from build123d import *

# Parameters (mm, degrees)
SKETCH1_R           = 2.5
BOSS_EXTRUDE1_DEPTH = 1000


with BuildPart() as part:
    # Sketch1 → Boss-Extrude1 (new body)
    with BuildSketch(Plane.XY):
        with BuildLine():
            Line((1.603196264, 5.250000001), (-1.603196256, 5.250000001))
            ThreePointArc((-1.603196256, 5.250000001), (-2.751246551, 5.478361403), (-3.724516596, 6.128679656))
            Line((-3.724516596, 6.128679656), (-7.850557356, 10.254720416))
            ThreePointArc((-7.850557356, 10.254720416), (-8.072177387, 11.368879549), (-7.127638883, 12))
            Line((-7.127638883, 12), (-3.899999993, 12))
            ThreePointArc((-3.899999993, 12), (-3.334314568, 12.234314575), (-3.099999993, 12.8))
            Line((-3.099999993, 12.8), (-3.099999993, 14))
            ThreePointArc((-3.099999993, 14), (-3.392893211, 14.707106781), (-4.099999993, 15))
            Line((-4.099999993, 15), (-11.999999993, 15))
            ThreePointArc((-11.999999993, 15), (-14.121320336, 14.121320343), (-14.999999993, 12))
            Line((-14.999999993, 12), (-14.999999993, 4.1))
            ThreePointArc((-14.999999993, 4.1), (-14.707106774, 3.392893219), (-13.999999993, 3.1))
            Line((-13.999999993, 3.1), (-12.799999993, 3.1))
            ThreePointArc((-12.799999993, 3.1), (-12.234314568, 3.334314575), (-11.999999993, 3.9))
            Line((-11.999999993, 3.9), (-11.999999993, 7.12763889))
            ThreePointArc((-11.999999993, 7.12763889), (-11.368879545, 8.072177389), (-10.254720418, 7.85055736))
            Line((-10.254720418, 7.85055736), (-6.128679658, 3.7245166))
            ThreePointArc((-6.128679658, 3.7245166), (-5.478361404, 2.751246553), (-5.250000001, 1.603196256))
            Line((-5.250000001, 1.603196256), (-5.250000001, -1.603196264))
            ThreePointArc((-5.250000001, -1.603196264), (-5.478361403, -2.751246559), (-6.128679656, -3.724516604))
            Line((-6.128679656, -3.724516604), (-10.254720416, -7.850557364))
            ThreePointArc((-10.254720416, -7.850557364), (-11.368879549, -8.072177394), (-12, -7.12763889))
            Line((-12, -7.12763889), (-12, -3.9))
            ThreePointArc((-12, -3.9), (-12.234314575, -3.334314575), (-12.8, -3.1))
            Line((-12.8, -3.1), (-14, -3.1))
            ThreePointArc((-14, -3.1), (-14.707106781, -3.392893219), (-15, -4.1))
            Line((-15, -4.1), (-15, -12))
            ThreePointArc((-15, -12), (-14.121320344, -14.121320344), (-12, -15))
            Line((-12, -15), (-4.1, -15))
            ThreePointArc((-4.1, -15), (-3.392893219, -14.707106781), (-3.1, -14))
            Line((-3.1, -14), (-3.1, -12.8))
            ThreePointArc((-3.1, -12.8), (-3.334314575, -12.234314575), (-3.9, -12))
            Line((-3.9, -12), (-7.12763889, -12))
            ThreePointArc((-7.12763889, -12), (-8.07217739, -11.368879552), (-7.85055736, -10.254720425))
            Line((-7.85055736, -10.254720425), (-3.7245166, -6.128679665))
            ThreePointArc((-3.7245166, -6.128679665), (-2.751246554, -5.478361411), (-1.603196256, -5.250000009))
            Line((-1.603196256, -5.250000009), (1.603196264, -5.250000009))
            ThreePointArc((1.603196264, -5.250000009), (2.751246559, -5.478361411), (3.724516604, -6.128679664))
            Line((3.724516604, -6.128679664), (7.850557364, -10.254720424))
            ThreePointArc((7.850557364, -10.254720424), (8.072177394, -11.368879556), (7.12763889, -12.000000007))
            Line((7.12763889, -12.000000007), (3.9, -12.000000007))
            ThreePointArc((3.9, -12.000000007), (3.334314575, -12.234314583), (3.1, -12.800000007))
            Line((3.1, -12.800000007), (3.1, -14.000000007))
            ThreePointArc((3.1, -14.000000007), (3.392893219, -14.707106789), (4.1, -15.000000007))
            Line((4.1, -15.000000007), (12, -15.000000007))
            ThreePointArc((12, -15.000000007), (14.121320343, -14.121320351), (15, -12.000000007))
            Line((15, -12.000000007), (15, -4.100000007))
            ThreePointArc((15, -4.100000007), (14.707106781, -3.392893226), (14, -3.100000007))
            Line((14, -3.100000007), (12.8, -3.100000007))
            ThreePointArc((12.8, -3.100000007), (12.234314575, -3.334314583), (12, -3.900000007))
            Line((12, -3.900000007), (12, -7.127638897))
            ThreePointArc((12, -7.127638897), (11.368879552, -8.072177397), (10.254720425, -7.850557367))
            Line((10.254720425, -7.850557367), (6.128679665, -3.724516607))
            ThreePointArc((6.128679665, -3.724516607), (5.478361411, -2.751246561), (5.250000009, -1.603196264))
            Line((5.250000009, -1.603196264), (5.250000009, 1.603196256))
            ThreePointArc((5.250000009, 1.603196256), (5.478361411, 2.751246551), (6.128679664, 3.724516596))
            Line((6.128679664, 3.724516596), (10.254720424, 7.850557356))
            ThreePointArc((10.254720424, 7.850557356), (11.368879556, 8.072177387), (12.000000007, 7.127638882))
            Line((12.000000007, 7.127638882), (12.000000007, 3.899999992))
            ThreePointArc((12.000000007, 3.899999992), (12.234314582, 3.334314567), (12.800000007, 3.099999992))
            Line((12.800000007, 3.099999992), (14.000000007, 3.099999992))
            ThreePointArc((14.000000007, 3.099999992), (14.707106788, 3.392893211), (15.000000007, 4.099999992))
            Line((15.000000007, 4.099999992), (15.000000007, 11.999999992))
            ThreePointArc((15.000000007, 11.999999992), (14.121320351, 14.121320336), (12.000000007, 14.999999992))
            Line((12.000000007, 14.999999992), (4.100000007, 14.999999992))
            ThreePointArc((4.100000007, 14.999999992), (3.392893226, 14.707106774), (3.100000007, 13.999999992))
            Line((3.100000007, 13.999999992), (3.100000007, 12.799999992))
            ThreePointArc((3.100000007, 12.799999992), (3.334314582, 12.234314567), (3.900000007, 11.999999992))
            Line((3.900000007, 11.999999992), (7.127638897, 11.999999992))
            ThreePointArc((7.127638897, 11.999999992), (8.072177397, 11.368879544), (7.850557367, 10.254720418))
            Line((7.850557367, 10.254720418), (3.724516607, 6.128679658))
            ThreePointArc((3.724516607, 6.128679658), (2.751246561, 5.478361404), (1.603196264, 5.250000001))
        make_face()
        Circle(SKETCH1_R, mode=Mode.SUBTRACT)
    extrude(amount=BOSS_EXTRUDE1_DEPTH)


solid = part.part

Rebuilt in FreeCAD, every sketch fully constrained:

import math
import FreeCAD as App
import Part
import Sketcher

V = App.Vector

doc = App.newDocument("Part")
body = doc.addObject("PartDesign::Body", "Body")

sketch1 = body.newObject("Sketcher::SketchObject", "Sketch")
sketch1.AttachmentSupport = (doc.getObject("XY_Plane"), [""])
sketch1.MapMode = "FlatFace"
sketch1.addGeometry(Part.LineSegment(V(1.6, 5.3, 0), V(-1.6, 5.3, 0)), False)
sketch1.addGeometry(Part.ArcOfCircle(Part.Circle(V(-1.6, 8.2, 0), V(0, 0, 1), 3), math.radians(-135), math.radians(-90)), False)
sketch1.addGeometry(Part.LineSegment(V(-3.7, 6.1, 0), V(-7.9, 10.3, 0)), False)
sketch1.addGeometry(Part.ArcOfCircle(Part.Circle(V(-7.1, 11, 0), V(0, 0, 1), 1), math.radians(90), math.radians(225)), False)
sketch1.addGeometry(Part.LineSegment(V(-7.1, 12, 0), V(-3.9, 12, 0)), False)
sketch1.addGeometry(Part.ArcOfCircle(Part.Circle(V(-3.9, 12.8, 0), V(0, 0, 1), 0.8), math.radians(-90), math.radians(0)), False)
sketch1.addGeometry(Part.LineSegment(V(-3.1, 12.8, 0), V(-3.1, 14, 0)), False)
sketch1.addGeometry(Part.ArcOfCircle(Part.Circle(V(-4.1, 14, 0), V(0, 0, 1), 1), math.radians(0), math.radians(90)), False)
sketch1.addGeometry(Part.LineSegment(V(-4.1, 15, 0), V(-12, 15, 0)), False)
sketch1.addGeometry(Part.ArcOfCircle(Part.Circle(V(-12, 12, 0), V(0, 0, 1), 3), math.radians(90), math.radians(180)), False)
sketch1.addGeometry(Part.LineSegment(V(-15, 12, 0), V(-15, 4.1, 0)), False)
sketch1.addGeometry(Part.ArcOfCircle(Part.Circle(V(-14, 4.1, 0), V(0, 0, 1), 1), math.radians(-180), math.radians(-90)), False)
sketch1.addGeometry(Part.LineSegment(V(-14, 3.1, 0), V(-12.8, 3.1, 0)), False)
sketch1.addGeometry(Part.ArcOfCircle(Part.Circle(V(-12.8, 3.9, 0), V(0, 0, 1), 0.8), math.radians(-90), math.radians(0)), False)
sketch1.addGeometry(Part.LineSegment(V(-12, 3.9, 0), V(-12, 7.1, 0)), False)
sketch1.addGeometry(Part.ArcOfCircle(Part.Circle(V(-11, 7.1, 0), V(0, 0, 1), 1), math.radians(45), math.radians(180)), False)
sketch1.addGeometry(Part.LineSegment(V(-10.3, 7.9, 0), V(-6.1, 3.7, 0)), False)
sketch1.addGeometry(Part.ArcOfCircle(Part.Circle(V(-8.3, 1.6, 0), V(0, 0, 1), 3), math.radians(0), math.radians(45)), False)
sketch1.addGeometry(Part.LineSegment(V(-5.3, 1.6, 0), V(-5.3, -1.6, 0)), False)
sketch1.addGeometry(Part.ArcOfCircle(Part.Circle(V(-8.2, -1.6, 0), V(0, 0, 1), 3), math.radians(-45), math.radians(0)), False)
sketch1.addGeometry(Part.LineSegment(V(-6.1, -3.7, 0), V(-10.3, -7.9, 0)), False)
sketch1.addGeometry(Part.ArcOfCircle(Part.Circle(V(-11, -7.1, 0), V(0, 0, 1), 1), math.radians(-180), math.radians(-45)), False)
sketch1.addGeometry(Part.LineSegment(V(-12, -7.1, 0), V(-12, -3.9, 0)), False)
sketch1.addGeometry(Part.ArcOfCircle(Part.Circle(V(-12.8, -3.9, 0), V(0, 0, 1), 0.8), math.radians(0), math.radians(90)), False)
sketch1.addGeometry(Part.LineSegment(V(-12.8, -3.1, 0), V(-14, -3.1, 0)), False)
sketch1.addGeometry(Part.ArcOfCircle(Part.Circle(V(-14, -4.1, 0), V(0, 0, 1), 1), math.radians(90), math.radians(180)), False)
sketch1.addGeometry(Part.LineSegment(V(-15, -4.1, 0), V(-15, -12, 0)), False)
sketch1.addGeometry(Part.ArcOfCircle(Part.Circle(V(-12, -12, 0), V(0, 0, 1), 3), math.radians(180), math.radians(270)), False)
sketch1.addGeometry(Part.LineSegment(V(-12, -15, 0), V(-4.1, -15, 0)), False)
sketch1.addGeometry(Part.ArcOfCircle(Part.Circle(V(-4.1, -14, 0), V(0, 0, 1), 1), math.radians(-90), math.radians(0)), False)
sketch1.addGeometry(Part.LineSegment(V(-3.1, -14, 0), V(-3.1, -12.8, 0)), False)
sketch1.addGeometry(Part.ArcOfCircle(Part.Circle(V(-3.9, -12.8, 0), V(0, 0, 1), 0.8), math.radians(0), math.radians(90)), False)
sketch1.addGeometry(Part.LineSegment(V(-3.9, -12, 0), V(-7.1, -12, 0)), False)
sketch1.addGeometry(Part.ArcOfCircle(Part.Circle(V(-7.1, -11, 0), V(0, 0, 1), 1), math.radians(135), math.radians(270)), False)
sketch1.addGeometry(Part.LineSegment(V(-7.9, -10.3, 0), V(-3.7, -6.1, 0)), False)
sketch1.addGeometry(Part.ArcOfCircle(Part.Circle(V(-1.6, -8.3, 0), V(0, 0, 1), 3), math.radians(90), math.radians(135)), False)
sketch1.addGeometry(Part.LineSegment(V(-1.6, -5.3, 0), V(1.6, -5.3, 0)), False)
sketch1.addGeometry(Part.ArcOfCircle(Part.Circle(V(1.6, -8.3, 0), V(0, 0, 1), 3), math.radians(45), math.radians(90)), False)
sketch1.addGeometry(Part.LineSegment(V(3.7, -6.1, 0), V(7.9, -10.3, 0)), False)
sketch1.addGeometry(Part.ArcOfCircle(Part.Circle(V(7.1, -11, 0), V(0, 0, 1), 1), math.radians(-90), math.radians(45)), False)
sketch1.addGeometry(Part.LineSegment(V(7.1, -12, 0), V(3.9, -12, 0)), False)
sketch1.addGeometry(Part.ArcOfCircle(Part.Circle(V(3.9, -12.8, 0), V(0, 0, 1), 0.8), math.radians(90), math.radians(180)), False)
sketch1.addGeometry(Part.LineSegment(V(3.1, -12.8, 0), V(3.1, -14, 0)), False)
sketch1.addGeometry(Part.ArcOfCircle(Part.Circle(V(4.1, -14, 0), V(0, 0, 1), 1), math.radians(180), math.radians(270)), False)
sketch1.addGeometry(Part.LineSegment(V(4.1, -15, 0), V(12, -15, 0)), False)
sketch1.addGeometry(Part.ArcOfCircle(Part.Circle(V(12, -12, 0), V(0, 0, 1), 3), math.radians(-90), math.radians(0)), False)
sketch1.addGeometry(Part.LineSegment(V(15, -12, 0), V(15, -4.1, 0)), False)
sketch1.addGeometry(Part.ArcOfCircle(Part.Circle(V(14, -4.1, 0), V(0, 0, 1), 1), math.radians(0), math.radians(90)), False)
sketch1.addGeometry(Part.LineSegment(V(14, -3.1, 0), V(12.8, -3.1, 0)), False)
sketch1.addGeometry(Part.ArcOfCircle(Part.Circle(V(12.8, -3.9, 0), V(0, 0, 1), 0.8), math.radians(90), math.radians(180)), False)
sketch1.addGeometry(Part.LineSegment(V(12, -3.9, 0), V(12, -7.1, 0)), False)
sketch1.addGeometry(Part.ArcOfCircle(Part.Circle(V(11, -7.1, 0), V(0, 0, 1), 1), math.radians(-135), math.radians(0)), False)
sketch1.addGeometry(Part.LineSegment(V(10.3, -7.9, 0), V(6.1, -3.7, 0)), False)
sketch1.addGeometry(Part.ArcOfCircle(Part.Circle(V(8.3, -1.6, 0), V(0, 0, 1), 3), math.radians(180), math.radians(225)), False)
sketch1.addGeometry(Part.LineSegment(V(5.3, -1.6, 0), V(5.3, 1.6, 0)), False)
sketch1.addGeometry(Part.ArcOfCircle(Part.Circle(V(8.3, 1.6, 0), V(0, 0, 1), 3), math.radians(135), math.radians(180)), False)
sketch1.addGeometry(Part.LineSegment(V(6.1, 3.7, 0), V(10.3, 7.9, 0)), False)
sketch1.addGeometry(Part.ArcOfCircle(Part.Circle(V(11, 7.1, 0), V(0, 0, 1), 1), math.radians(0), math.radians(135)), False)
sketch1.addGeometry(Part.LineSegment(V(12, 7.1, 0), V(12, 3.9, 0)), False)
sketch1.addGeometry(Part.ArcOfCircle(Part.Circle(V(12.8, 3.9, 0), V(0, 0, 1), 0.8), math.radians(180), math.radians(270)), False)
sketch1.addGeometry(Part.LineSegment(V(12.8, 3.1, 0), V(14, 3.1, 0)), False)
sketch1.addGeometry(Part.ArcOfCircle(Part.Circle(V(14, 4.1, 0), V(0, 0, 1), 1), math.radians(-90), math.radians(0)), False)
sketch1.addGeometry(Part.LineSegment(V(15, 4.1, 0), V(15, 12, 0)), False)
sketch1.addGeometry(Part.ArcOfCircle(Part.Circle(V(12, 12, 0), V(0, 0, 1), 3), math.radians(0), math.radians(90)), False)
sketch1.addGeometry(Part.LineSegment(V(12, 15, 0), V(4.1, 15, 0)), False)
sketch1.addGeometry(Part.ArcOfCircle(Part.Circle(V(4.1, 14, 0), V(0, 0, 1), 1), math.radians(90), math.radians(180)), False)
sketch1.addGeometry(Part.LineSegment(V(3.1, 14, 0), V(3.1, 12.8, 0)), False)
sketch1.addGeometry(Part.ArcOfCircle(Part.Circle(V(3.9, 12.8, 0), V(0, 0, 1), 0.8), math.radians(180), math.radians(270)), False)
sketch1.addGeometry(Part.LineSegment(V(3.9, 12, 0), V(7.1, 12, 0)), False)
sketch1.addGeometry(Part.ArcOfCircle(Part.Circle(V(7.1, 11, 0), V(0, 0, 1), 1), math.radians(-45), math.radians(90)), False)
sketch1.addGeometry(Part.LineSegment(V(7.9, 10.3, 0), V(3.7, 6.1, 0)), False)
sketch1.addGeometry(Part.ArcOfCircle(Part.Circle(V(1.6, 8.3, 0), V(0, 0, 1), 3), math.radians(-90), math.radians(-45)), False)
sketch1.addGeometry(Part.Circle(V(0, 0, 0), V(0, 0, 1), 2.5), False)
sketch1.addConstraint(Sketcher.Constraint("Tangent", 0, 2, 1, 2))
sketch1.addConstraint(Sketcher.Constraint("Tangent", 1, 1, 2, 1))
sketch1.addConstraint(Sketcher.Constraint("Tangent", 2, 2, 3, 2))
sketch1.addConstraint(Sketcher.Constraint("Tangent", 3, 1, 4, 1))
sketch1.addConstraint(Sketcher.Constraint("Tangent", 4, 2, 5, 1))
sketch1.addConstraint(Sketcher.Constraint("Tangent", 5, 2, 6, 1))
sketch1.addConstraint(Sketcher.Constraint("Tangent", 6, 2, 7, 1))
sketch1.addConstraint(Sketcher.Constraint("Tangent", 7, 2, 8, 1))
sketch1.addConstraint(Sketcher.Constraint("Tangent", 8, 2, 9, 1))
sketch1.addConstraint(Sketcher.Constraint("Tangent", 9, 2, 10, 1))
sketch1.addConstraint(Sketcher.Constraint("Tangent", 10, 2, 11, 1))
sketch1.addConstraint(Sketcher.Constraint("Tangent", 11, 2, 12, 1))
sketch1.addConstraint(Sketcher.Constraint("Tangent", 12, 2, 13, 1))
sketch1.addConstraint(Sketcher.Constraint("Tangent", 13, 2, 14, 1))
sketch1.addConstraint(Sketcher.Constraint("Tangent", 14, 2, 15, 2))
sketch1.addConstraint(Sketcher.Constraint("Tangent", 15, 1, 16, 1))
sketch1.addConstraint(Sketcher.Constraint("Tangent", 16, 2, 17, 2))
sketch1.addConstraint(Sketcher.Constraint("Tangent", 17, 1, 18, 1))
sketch1.addConstraint(Sketcher.Constraint("Tangent", 18, 2, 19, 2))
sketch1.addConstraint(Sketcher.Constraint("Tangent", 19, 1, 20, 1))
sketch1.addConstraint(Sketcher.Constraint("Tangent", 20, 2, 21, 2))
sketch1.addConstraint(Sketcher.Constraint("Tangent", 21, 1, 22, 1))
sketch1.addConstraint(Sketcher.Constraint("Tangent", 22, 2, 23, 1))
sketch1.addConstraint(Sketcher.Constraint("Tangent", 23, 2, 24, 1))
sketch1.addConstraint(Sketcher.Constraint("Tangent", 24, 2, 25, 1))
sketch1.addConstraint(Sketcher.Constraint("Tangent", 25, 2, 26, 1))
sketch1.addConstraint(Sketcher.Constraint("Tangent", 26, 2, 27, 1))
sketch1.addConstraint(Sketcher.Constraint("Tangent", 27, 2, 28, 1))
sketch1.addConstraint(Sketcher.Constraint("Tangent", 28, 2, 29, 1))
sketch1.addConstraint(Sketcher.Constraint("Tangent", 29, 2, 30, 1))
sketch1.addConstraint(Sketcher.Constraint("Tangent", 30, 2, 31, 1))
sketch1.addConstraint(Sketcher.Constraint("Tangent", 31, 2, 32, 1))
sketch1.addConstraint(Sketcher.Constraint("Tangent", 32, 2, 33, 2))
sketch1.addConstraint(Sketcher.Constraint("Tangent", 33, 1, 34, 1))
sketch1.addConstraint(Sketcher.Constraint("Tangent", 34, 2, 35, 2))
sketch1.addConstraint(Sketcher.Constraint("Tangent", 35, 1, 36, 1))
sketch1.addConstraint(Sketcher.Constraint("Tangent", 36, 2, 37, 2))
sketch1.addConstraint(Sketcher.Constraint("Tangent", 37, 1, 38, 1))
sketch1.addConstraint(Sketcher.Constraint("Tangent", 38, 2, 39, 2))
sketch1.addConstraint(Sketcher.Constraint("Tangent", 39, 1, 40, 1))
sketch1.addConstraint(Sketcher.Constraint("Tangent", 40, 2, 41, 1))
sketch1.addConstraint(Sketcher.Constraint("Tangent", 41, 2, 42, 1))
sketch1.addConstraint(Sketcher.Constraint("Tangent", 42, 2, 43, 1))
sketch1.addConstraint(Sketcher.Constraint("Tangent", 43, 2, 44, 1))
sketch1.addConstraint(Sketcher.Constraint("Tangent", 44, 2, 45, 1))
sketch1.addConstraint(Sketcher.Constraint("Tangent", 45, 2, 46, 1))
sketch1.addConstraint(Sketcher.Constraint("Tangent", 46, 2, 47, 1))
sketch1.addConstraint(Sketcher.Constraint("Tangent", 47, 2, 48, 1))
sketch1.addConstraint(Sketcher.Constraint("Tangent", 48, 2, 49, 1))
sketch1.addConstraint(Sketcher.Constraint("Tangent", 49, 2, 50, 1))
sketch1.addConstraint(Sketcher.Constraint("Tangent", 50, 2, 51, 2))
sketch1.addConstraint(Sketcher.Constraint("Tangent", 51, 1, 52, 1))
sketch1.addConstraint(Sketcher.Constraint("Tangent", 52, 2, 53, 2))
sketch1.addConstraint(Sketcher.Constraint("Tangent", 53, 1, 54, 1))
sketch1.addConstraint(Sketcher.Constraint("Tangent", 54, 2, 55, 2))
sketch1.addConstraint(Sketcher.Constraint("Tangent", 55, 1, 56, 1))
sketch1.addConstraint(Sketcher.Constraint("Tangent", 56, 2, 57, 2))
sketch1.addConstraint(Sketcher.Constraint("Tangent", 57, 1, 58, 1))
sketch1.addConstraint(Sketcher.Constraint("Tangent", 58, 2, 59, 1))
sketch1.addConstraint(Sketcher.Constraint("Tangent", 59, 2, 60, 1))
sketch1.addConstraint(Sketcher.Constraint("Tangent", 60, 2, 61, 1))
sketch1.addConstraint(Sketcher.Constraint("Tangent", 61, 2, 62, 1))
sketch1.addConstraint(Sketcher.Constraint("Tangent", 62, 2, 63, 1))
sketch1.addConstraint(Sketcher.Constraint("Tangent", 63, 2, 64, 1))
sketch1.addConstraint(Sketcher.Constraint("Tangent", 64, 2, 65, 1))
sketch1.addConstraint(Sketcher.Constraint("Tangent", 65, 2, 66, 1))
sketch1.addConstraint(Sketcher.Constraint("Tangent", 66, 2, 67, 1))
sketch1.addConstraint(Sketcher.Constraint("Tangent", 67, 2, 68, 1))
sketch1.addConstraint(Sketcher.Constraint("Tangent", 68, 2, 69, 2))
sketch1.addConstraint(Sketcher.Constraint("Tangent", 69, 1, 70, 1))
sketch1.addConstraint(Sketcher.Constraint("Tangent", 70, 2, 71, 2))
sketch1.addConstraint(Sketcher.Constraint("Tangent", 71, 1, 0, 1))
sketch1.addConstraint(Sketcher.Constraint("Horizontal", 0))
sketch1.addConstraint(Sketcher.Constraint("Horizontal", 4))
sketch1.addConstraint(Sketcher.Constraint("Vertical", 6))
sketch1.addConstraint(Sketcher.Constraint("Horizontal", 8))
sketch1.addConstraint(Sketcher.Constraint("Vertical", 10))
sketch1.addConstraint(Sketcher.Constraint("Horizontal", 12))
sketch1.addConstraint(Sketcher.Constraint("Vertical", 14))
sketch1.addConstraint(Sketcher.Constraint("Vertical", 18))
sketch1.addConstraint(Sketcher.Constraint("Vertical", 22))
sketch1.addConstraint(Sketcher.Constraint("Horizontal", 24))
sketch1.addConstraint(Sketcher.Constraint("Vertical", 26))
sketch1.addConstraint(Sketcher.Constraint("Horizontal", 28))
sketch1.addConstraint(Sketcher.Constraint("Vertical", 30))
sketch1.addConstraint(Sketcher.Constraint("Horizontal", 32))
sketch1.addConstraint(Sketcher.Constraint("Horizontal", 36))
sketch1.addConstraint(Sketcher.Constraint("Horizontal", 40))
sketch1.addConstraint(Sketcher.Constraint("Vertical", 42))
sketch1.addConstraint(Sketcher.Constraint("Horizontal", 44))
sketch1.addConstraint(Sketcher.Constraint("Vertical", 46))
sketch1.addConstraint(Sketcher.Constraint("Horizontal", 48))
sketch1.addConstraint(Sketcher.Constraint("Vertical", 50))
sketch1.addConstraint(Sketcher.Constraint("Vertical", 54))
sketch1.addConstraint(Sketcher.Constraint("Vertical", 58))
sketch1.addConstraint(Sketcher.Constraint("Horizontal", 60))
sketch1.addConstraint(Sketcher.Constraint("Vertical", 62))
sketch1.addConstraint(Sketcher.Constraint("Horizontal", 64))
sketch1.addConstraint(Sketcher.Constraint("Vertical", 66))
sketch1.addConstraint(Sketcher.Constraint("Horizontal", 68))
sketch1.addConstraint(Sketcher.Constraint("Coincident", 72, 3, -1, 1))
sketch1.addConstraint(Sketcher.Constraint("Equal", 1, 9))
sketch1.addConstraint(Sketcher.Constraint("Equal", 7, 11))
sketch1.addConstraint(Sketcher.Constraint("Equal", 5, 13))
sketch1.addConstraint(Sketcher.Constraint("Equal", 3, 15))
sketch1.addConstraint(Sketcher.Constraint("Equal", 9, 17))
sketch1.addConstraint(Sketcher.Constraint("Equal", 17, 19))
sketch1.addConstraint(Sketcher.Constraint("Equal", 15, 21))
sketch1.addConstraint(Sketcher.Constraint("Equal", 13, 23))
sketch1.addConstraint(Sketcher.Constraint("Equal", 11, 25))
sketch1.addConstraint(Sketcher.Constraint("Equal", 19, 27))
sketch1.addConstraint(Sketcher.Constraint("Equal", 25, 29))
sketch1.addConstraint(Sketcher.Constraint("Equal", 23, 31))
sketch1.addConstraint(Sketcher.Constraint("Equal", 21, 33))
sketch1.addConstraint(Sketcher.Constraint("Equal", 27, 35))
sketch1.addConstraint(Sketcher.Constraint("Equal", 35, 37))
sketch1.addConstraint(Sketcher.Constraint("Equal", 33, 39))
sketch1.addConstraint(Sketcher.Constraint("Equal", 31, 41))
sketch1.addConstraint(Sketcher.Constraint("Equal", 29, 43))
sketch1.addConstraint(Sketcher.Constraint("Equal", 37, 45))
sketch1.addConstraint(Sketcher.Constraint("Equal", 43, 47))
sketch1.addConstraint(Sketcher.Constraint("Equal", 41, 49))
sketch1.addConstraint(Sketcher.Constraint("Equal", 39, 51))
sketch1.addConstraint(Sketcher.Constraint("Equal", 45, 53))
sketch1.addConstraint(Sketcher.Constraint("Equal", 53, 55))
sketch1.addConstraint(Sketcher.Constraint("Equal", 51, 57))
sketch1.addConstraint(Sketcher.Constraint("Equal", 49, 59))
sketch1.addConstraint(Sketcher.Constraint("Equal", 47, 61))
sketch1.addConstraint(Sketcher.Constraint("Equal", 55, 63))
sketch1.addConstraint(Sketcher.Constraint("Equal", 61, 65))
sketch1.addConstraint(Sketcher.Constraint("Equal", 59, 67))
sketch1.addConstraint(Sketcher.Constraint("Equal", 57, 69))
sketch1.addConstraint(Sketcher.Constraint("Equal", 63, 71))
sketch1.addConstraint(Sketcher.Constraint("Symmetric", 1, 3, 37, 3, -1, 1))
sketch1.addConstraint(Sketcher.Constraint("Symmetric", 3, 3, 39, 3, -1, 1))
sketch1.addConstraint(Sketcher.Constraint("Symmetric", 7, 3, 43, 3, -1, 1))
sketch1.addConstraint(Sketcher.Constraint("Symmetric", 11, 3, 47, 3, -1, 1))
sketch1.addConstraint(Sketcher.Constraint("Symmetric", 15, 3, 51, 3, -1, 1))
sketch1.addConstraint(Sketcher.Constraint("Symmetric", 17, 3, 53, 3, -1, 1))
sketch1.addConstraint(Sketcher.Constraint("Symmetric", 21, 3, 57, 3, -1, 1))
sketch1.addConstraint(Sketcher.Constraint("Symmetric", 25, 3, 61, 3, -1, 1))
sketch1.addConstraint(Sketcher.Constraint("Symmetric", 29, 3, 65, 3, -1, 1))
sketch1.addConstraint(Sketcher.Constraint("Symmetric", 33, 3, 69, 3, -1, 1))
sketch1.addConstraint(Sketcher.Constraint("Symmetric", 33, 3, 39, 3, -2))
sketch1.addConstraint(Sketcher.Constraint("Symmetric", 29, 3, 43, 3, -2))
sketch1.addConstraint(Sketcher.Constraint("Symmetric", 25, 3, 47, 3, -2))
sketch1.addConstraint(Sketcher.Constraint("Symmetric", 21, 3, 51, 3, -2))
sketch1.addConstraint(Sketcher.Constraint("Parallel", 2, 16))
sketch1.addConstraint(Sketcher.Constraint("Perpendicular", 16, 20))
sketch1.addConstraint(Sketcher.Constraint("Parallel", 20, 34))
sketch1.addConstraint(Sketcher.Constraint("Perpendicular", 52, 56))
sketch1.addConstraint(Sketcher.Constraint("Parallel", 56, 70))
sketch1.addConstraint(Sketcher.Constraint("Horizontal", 19, 3, 53, 3))
sketch1.addConstraint(Sketcher.Constraint("Horizontal", 63, 3, 3, 1))
sketch1.addConstraint(Sketcher.Constraint("Vertical", 8, 2, 13, 2))
sketch1.addConstraint(Sketcher.Constraint("Equal", 64, 10))
sketch1.addConstraint(Sketcher.Constraint("Equal", 68, 14))
sketch1.addConstraint(Sketcher.Constraint("Equal", 36, 18))
sketch1.addConstraint(Sketcher.Constraint("Equal", 2, 16))
sketch1.addConstraint(Sketcher.Constraint("Diameter", 72, 5.0))
sketch1.addConstraint(Sketcher.Constraint("Radius", 1, 3.0))
sketch1.addConstraint(Sketcher.Constraint("Radius", 7, 1.0))
sketch1.addConstraint(Sketcher.Constraint("Radius", 5, 0.8))
sketch1.addConstraint(Sketcher.Constraint("DistanceX", 8, 2, 8, 1, 7.9))
sketch1.addConstraint(Sketcher.Constraint("DistanceY", -1, 1, 7, 3, 14.0))
sketch1.addConstraint(Sketcher.Constraint("DistanceY", -1, 1, 1, 3, 8.25))
sketch1.addConstraint(Sketcher.Constraint("Radius", 3, 1.022361))
sketch1.addConstraint(Sketcher.Constraint("DistanceX", 4, 1, 4, 2, 3.227639))
pad1 = body.newObject("PartDesign::Pad", "Pad")
pad1.Profile = sketch1
pad1.Length = 1000

doc.recompute()
